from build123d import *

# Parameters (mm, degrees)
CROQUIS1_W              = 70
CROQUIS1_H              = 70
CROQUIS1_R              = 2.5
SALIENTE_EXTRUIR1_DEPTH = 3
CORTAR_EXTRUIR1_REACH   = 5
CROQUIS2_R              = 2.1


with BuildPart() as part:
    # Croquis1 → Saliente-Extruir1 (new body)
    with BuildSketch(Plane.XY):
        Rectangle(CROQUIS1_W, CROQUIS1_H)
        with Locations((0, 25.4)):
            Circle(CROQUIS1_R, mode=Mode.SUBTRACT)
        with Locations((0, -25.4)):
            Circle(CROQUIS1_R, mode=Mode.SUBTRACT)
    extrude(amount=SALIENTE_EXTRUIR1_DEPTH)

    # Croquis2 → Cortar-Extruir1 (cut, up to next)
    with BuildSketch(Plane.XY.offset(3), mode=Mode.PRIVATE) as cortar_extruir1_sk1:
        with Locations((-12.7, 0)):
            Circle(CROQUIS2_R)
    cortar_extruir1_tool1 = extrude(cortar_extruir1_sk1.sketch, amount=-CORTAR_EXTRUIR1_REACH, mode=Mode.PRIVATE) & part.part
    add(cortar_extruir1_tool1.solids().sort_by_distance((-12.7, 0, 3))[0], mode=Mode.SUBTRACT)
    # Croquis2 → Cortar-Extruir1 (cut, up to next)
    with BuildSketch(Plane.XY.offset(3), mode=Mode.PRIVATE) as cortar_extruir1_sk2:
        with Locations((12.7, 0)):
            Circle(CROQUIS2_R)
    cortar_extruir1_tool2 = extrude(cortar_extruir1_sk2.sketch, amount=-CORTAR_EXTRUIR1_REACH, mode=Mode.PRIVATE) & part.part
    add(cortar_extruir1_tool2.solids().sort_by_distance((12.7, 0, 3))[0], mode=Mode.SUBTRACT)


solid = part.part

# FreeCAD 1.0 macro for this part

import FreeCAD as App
import Part
import Sketcher
Q = App.Units.Quantity


def add_polygon(sketch, points):
    """Adds a closed chain of lines whose ends are joined by coincident constraints."""
    first, n = sketch.GeometryCount, len(points)
    for a, b in zip(points, points[1:] + points[:1]):
        sketch.addGeometry(Part.LineSegment(App.Vector(*a, 0), App.Vector(*b, 0)), False)
    for i in range(n):
        sketch.addConstraint(Sketcher.Constraint("Coincident", first + i, 2, first + (i + 1) % n, 1))

doc = App.newDocument("Part")
body = doc.addObject("PartDesign::Body", "Body")

# Sketch on XY plane
sketch1 = body.newObject("Sketcher::SketchObject", "Sketch")
sketch1.AttachmentSupport = (doc.getObject("XY_Plane"), [""])
sketch1.MapMode = "FlatFace"
add_polygon(sketch1, [(-35, 35), (-35, -35), (35, -35), (35, 35)])  # lines 0-3
sketch1.addGeometry(Part.Circle(App.Vector(0, -25.4, 0), App.Vector(0, 0, 1), 2.5), False)  # 4
sketch1.addGeometry(Part.Circle(App.Vector(0, 25.4, 0), App.Vector(0, 0, 1), 2.5), False)  # 5
sketch1.addConstraint(Sketcher.Constraint("Vertical", 0))
sketch1.addConstraint(Sketcher.Constraint("Horizontal", 1))
sketch1.addConstraint(Sketcher.Constraint("Vertical", 2))
sketch1.addConstraint(Sketcher.Constraint("Horizontal", 3))
sketch1.addConstraint(Sketcher.Constraint("Equal", 4, 5))
sketch1.addConstraint(Sketcher.Constraint("Symmetric", 4, 3, 5, 3, -1, 1))
sketch1.addConstraint(Sketcher.Constraint("Symmetric", 0, 2, 2, 2, -1, 1))
sketch1.addConstraint(Sketcher.Constraint("PointOnObject", 4, 3, -2))
sketch1.addConstraint(Sketcher.Constraint("Equal", 3, 0))
sketch1.addConstraint(Sketcher.Constraint("Diameter", 4, Q("5 mm")))
sketch1.addConstraint(Sketcher.Constraint("DistanceX", 1, 1, 1, 2, Q("70 mm")))
sketch1.addConstraint(Sketcher.Constraint("DistanceY", 4, 3, -1, 1, Q("25.4 mm")))
pad1 = body.newObject("PartDesign::Pad", "Pad")
pad1.Profile = sketch1
pad1.Length = 3

# Sketch on XY plane
sketch2 = body.newObject("Sketcher::SketchObject", "Sketch001")
sketch2.AttachmentSupport = (doc.getObject("XY_Plane"), [""])
sketch2.MapMode = "FlatFace"
sketch2.AttachmentOffset = App.Placement(App.Vector(0, 0, 3), App.Rotation())
sketch2.addGeometry(Part.Circle(App.Vector(-12.7, 0, 0), App.Vector(0, 0, 1), 2.1), False)
sketch2.addConstraint(Sketcher.Constraint("PointOnObject", 0, 3, -1))
sketch2.addConstraint(Sketcher.Constraint("Diameter", 0, Q("4.2 mm")))
sketch2.addConstraint(Sketcher.Constraint("DistanceX", 0, 3, -1, 1, Q("12.7 mm")))
pocket1 = body.newObject("PartDesign::Pocket", "Pocket")
pocket1.Profile = sketch2
pocket1.Type = "UpToFirst"

# Sketch on XY plane
sketch3 = body.newObject("Sketcher::SketchObject", "Sketch002")
sketch3.AttachmentSupport = (doc.getObject("XY_Plane"), [""])
sketch3.MapMode = "FlatFace"
sketch3.AttachmentOffset = App.Placement(App.Vector(0, 0, 3), App.Rotation())
sketch3.addGeometry(Part.Circle(App.Vector(12.7, 0, 0), App.Vector(0, 0, 1), 2.1), False)
sketch3.addConstraint(Sketcher.Constraint("PointOnObject", 0, 3, -1))
sketch3.addConstraint(Sketcher.Constraint("Diameter", 0, Q("4.2 mm")))
sketch3.addConstraint(Sketcher.Constraint("DistanceX", -1, 1, 0, 3, Q("12.7 mm")))
pocket2 = body.newObject("PartDesign::Pocket", "Pocket001")
pocket2.Profile = sketch3
pocket2.Type = "UpToFirst"

doc.recompute()
